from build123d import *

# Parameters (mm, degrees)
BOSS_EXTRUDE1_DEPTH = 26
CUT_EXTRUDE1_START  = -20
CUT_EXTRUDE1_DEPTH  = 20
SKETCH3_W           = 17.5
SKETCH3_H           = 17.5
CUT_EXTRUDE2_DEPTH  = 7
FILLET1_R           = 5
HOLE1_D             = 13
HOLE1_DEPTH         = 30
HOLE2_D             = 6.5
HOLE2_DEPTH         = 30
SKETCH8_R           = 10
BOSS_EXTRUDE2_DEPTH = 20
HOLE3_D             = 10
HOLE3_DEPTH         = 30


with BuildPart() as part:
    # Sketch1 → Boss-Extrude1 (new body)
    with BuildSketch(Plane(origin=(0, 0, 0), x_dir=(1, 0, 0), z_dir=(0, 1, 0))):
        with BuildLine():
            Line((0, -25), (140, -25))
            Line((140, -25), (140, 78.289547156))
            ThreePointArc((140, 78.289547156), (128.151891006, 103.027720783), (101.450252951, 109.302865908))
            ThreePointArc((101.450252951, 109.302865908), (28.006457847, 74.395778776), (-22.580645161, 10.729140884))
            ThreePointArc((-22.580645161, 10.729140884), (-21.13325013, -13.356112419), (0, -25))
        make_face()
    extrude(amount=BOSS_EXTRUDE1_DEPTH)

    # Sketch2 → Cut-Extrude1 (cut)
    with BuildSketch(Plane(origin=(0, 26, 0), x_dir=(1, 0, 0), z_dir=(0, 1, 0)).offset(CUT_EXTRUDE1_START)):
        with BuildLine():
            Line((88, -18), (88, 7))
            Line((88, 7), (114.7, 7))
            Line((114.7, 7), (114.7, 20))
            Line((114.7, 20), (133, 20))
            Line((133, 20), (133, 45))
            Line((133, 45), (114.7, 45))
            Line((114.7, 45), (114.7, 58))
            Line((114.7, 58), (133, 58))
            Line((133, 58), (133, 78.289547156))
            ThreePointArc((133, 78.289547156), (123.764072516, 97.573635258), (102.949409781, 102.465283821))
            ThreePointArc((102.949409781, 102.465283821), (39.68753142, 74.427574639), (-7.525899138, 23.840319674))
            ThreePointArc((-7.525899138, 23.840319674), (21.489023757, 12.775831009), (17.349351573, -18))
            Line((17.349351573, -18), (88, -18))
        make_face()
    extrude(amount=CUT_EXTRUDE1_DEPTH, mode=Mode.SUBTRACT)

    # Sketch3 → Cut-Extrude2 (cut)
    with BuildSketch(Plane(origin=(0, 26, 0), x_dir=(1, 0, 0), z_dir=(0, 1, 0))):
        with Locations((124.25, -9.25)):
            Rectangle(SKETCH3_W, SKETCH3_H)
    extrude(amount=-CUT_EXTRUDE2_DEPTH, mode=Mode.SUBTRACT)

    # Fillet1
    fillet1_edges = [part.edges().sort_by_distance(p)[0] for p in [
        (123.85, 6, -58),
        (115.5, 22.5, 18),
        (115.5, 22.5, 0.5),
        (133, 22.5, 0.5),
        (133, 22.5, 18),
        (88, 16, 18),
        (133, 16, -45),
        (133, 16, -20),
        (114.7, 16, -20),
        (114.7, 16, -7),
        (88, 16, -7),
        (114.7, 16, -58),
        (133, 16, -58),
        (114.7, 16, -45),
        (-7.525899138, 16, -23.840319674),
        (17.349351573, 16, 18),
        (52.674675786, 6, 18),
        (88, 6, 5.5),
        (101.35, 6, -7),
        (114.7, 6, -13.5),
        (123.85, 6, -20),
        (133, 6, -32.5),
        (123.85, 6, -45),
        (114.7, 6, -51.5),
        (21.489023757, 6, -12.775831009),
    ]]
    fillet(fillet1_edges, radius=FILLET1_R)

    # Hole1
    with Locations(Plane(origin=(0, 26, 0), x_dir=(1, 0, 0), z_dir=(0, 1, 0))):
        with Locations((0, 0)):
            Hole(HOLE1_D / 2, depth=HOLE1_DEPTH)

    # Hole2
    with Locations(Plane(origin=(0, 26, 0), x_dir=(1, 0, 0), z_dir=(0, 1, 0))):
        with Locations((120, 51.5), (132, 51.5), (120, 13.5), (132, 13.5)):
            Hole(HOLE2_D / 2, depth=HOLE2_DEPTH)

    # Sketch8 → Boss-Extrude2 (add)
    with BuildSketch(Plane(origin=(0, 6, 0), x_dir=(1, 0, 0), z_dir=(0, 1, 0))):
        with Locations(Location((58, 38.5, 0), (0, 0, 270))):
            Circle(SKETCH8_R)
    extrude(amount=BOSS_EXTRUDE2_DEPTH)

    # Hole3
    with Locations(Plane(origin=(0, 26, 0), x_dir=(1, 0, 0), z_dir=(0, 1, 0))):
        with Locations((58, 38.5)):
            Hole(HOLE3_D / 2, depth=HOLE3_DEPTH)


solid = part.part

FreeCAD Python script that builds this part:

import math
import FreeCAD as App
import Part
import Sketcher
from FreeCAD import Vector
Q = App.Units.Quantity


def edges_at(feature, points):
    """Names of the edges that pass closest to the given points."""
    edges = feature.Shape.Edges
    near = lambda p: min(range(len(edges)), key=lambda i: edges[i].distToShape(Part.Vertex(*p))[0])
    return sorted({f"Edge{near(p) + 1}" for p in points})


def add_polygon(sketch, points):
    """Adds a closed chain of lines whose ends are joined by coincident constraints."""
    first, n = sketch.GeometryCount, len(points)
    for a, b in zip(points, points[1:] + points[:1]):
        sketch.addGeometry(Part.LineSegment(App.Vector(*a, 0), App.Vector(*b, 0)), False)
    for i in range(n):
        sketch.addConstraint(Sketcher.Constraint("Coincident", first + i, 2, first + (i + 1) % n, 1))

doc = App.newDocument("Part")
body = doc.addObject("PartDesign::Body", "Body")

# Sketch on XZ plane
sketch1 = doc.addObject("Sketcher::SketchObject", "Sketch")
body.addObject(sketch1)
sketch1.AttachmentSupport = (doc.XZ_Plane, [""])
sketch1.MapMode = "FlatFace"
sketch1.addGeometry([
    Part.LineSegment(Vector(0, 25, 0), Vector(140, 25, 0)),  # 0
    Part.LineSegment(Vector(140, 25, 0), Vector(140, -78, 0)),  # 1
    Part.ArcOfCircle(Part.Circle(Vector(108, -78, 0), Vector(0, 0, 1), 32), math.radians(-102), math.radians(0)),  # 2
    Part.ArcOfCircle(Part.Circle(Vector(140, 67, 0), Vector(0, 0, 1), 180), math.radians(-155), math.radians(-102)),  # 3
    Part.ArcOfCircle(Part.Circle(Vector(0, 0, 0), Vector(0, 0, 1), 25), math.radians(90), math.radians(205)),  # 4
], False)
sketch1.addConstraint([
    Sketcher.Constraint("Coincident", 0, 2, 1, 1),
    Sketcher.Constraint("Tangent", 1, 2, 2, 2),
    Sketcher.Constraint("Tangent", 2, 1, 3, 2),
    Sketcher.Constraint("Tangent", 3, 1, 4, 2),
    Sketcher.Constraint("Tangent", 4, 1, 0, 1),
    Sketcher.Constraint("Horizontal", 0),
    Sketcher.Constraint("Vertical", 1),
    Sketcher.Constraint("Coincident", 4, 3, -1, 1),
    Sketcher.Constraint("Vertical", 3, 3, 0, 2),
    Sketcher.Constraint("Radius", 3, Q("180 mm")),
    Sketcher.Constraint("Radius", 4, Q("25 mm")),
    Sketcher.Constraint("DistanceX", 0, 1, 0, 2, Q("140 mm")),
    Sketcher.Constraint("Radius", 2, Q("31.75 mm")),
])
pad1 = doc.addObject("PartDesign::Pad", "Pad")
body.addObject(pad1)
pad1.Profile = sketch1
pad1.Length = 26
pad1.Reversed = True

# Sketch on XZ plane
sketch2 = doc.addObject("Sketcher::SketchObject", "Sketch001")
body.addObject(sketch2)
sketch2.AttachmentSupport = (doc.XZ_Plane, [""])
sketch2.MapMode = "FlatFace"
sketch2.AttachmentOffset = App.Placement(Vector(0, 0, -6), App.Rotation())
sketch2.addGeometry([
    Part.LineSegment(Vector(88, 18, 0), Vector(88, -7, 0)),  # 0
    Part.LineSegment(Vector(88, -7, 0), Vector(115, -7, 0)),  # 1
    Part.LineSegment(Vector(115, -7, 0), Vector(115, -20, 0)),  # 2
    Part.LineSegment(Vector(115, -20, 0), Vector(133, -20, 0)),  # 3
    Part.LineSegment(Vector(133, -20, 0), Vector(133, -45, 0)),  # 4
    Part.LineSegment(Vector(133, -45, 0), Vector(115, -45, 0)),  # 5
    Part.LineSegment(Vector(115, -45, 0), Vector(115, -58, 0)),  # 6
    Part.LineSegment(Vector(115, -58, 0), Vector(133, -58, 0)),  # 7
    Part.LineSegment(Vector(133, -58, 0), Vector(133, -78, 0)),  # 8
    Part.ArcOfCircle(Part.Circle(Vector(108, -78, 0), Vector(0, 0, 1), 25), math.radians(-102), math.radians(0)),  # 9
    Part.ArcOfCircle(Part.Circle(Vector(140, 67, 0), Vector(0, 0, 1), 173), math.radians(-149), math.radians(-102)),  # 10
    Part.ArcOfCircle(Part.Circle(Vector(0, 0, 0), Vector(0, 0, 1), 25), math.radians(-108), math.radians(46)),  # 11
    Part.LineSegment(Vector(17, 18, 0), Vector(88, 18, 0)),  # 12
], False)
sketch2.addConstraint([
    Sketcher.Constraint("Coincident", 0, 2, 1, 1),
    Sketcher.Constraint("Coincident", 1, 2, 2, 1),
    Sketcher.Constraint("Coincident", 2, 2, 3, 1),
    Sketcher.Constraint("Coincident", 3, 2, 4, 1),
    Sketcher.Constraint("Coincident", 4, 2, 5, 1),
    Sketcher.Constraint("Coincident", 5, 2, 6, 1),
    Sketcher.Constraint("Coincident", 6, 2, 7, 1),
    Sketcher.Constraint("Coincident", 7, 2, 8, 1),
    Sketcher.Constraint("Tangent", 8, 2, 9, 2),
    Sketcher.Constraint("Tangent", 9, 1, 10, 2),
    Sketcher.Constraint("Coincident", 10, 1, 11, 1),
    Sketcher.Constraint("Coincident", 11, 2, 12, 1),
    Sketcher.Constraint("Coincident", 12, 2, 0, 1),
    Sketcher.Constraint("Vertical", 0),
    Sketcher.Constraint("Horizontal", 1),
    Sketcher.Constraint("Vertical", 2),
    Sketcher.Constraint("Horizontal", 3),
    Sketcher.Constraint("Vertical", 4),
    Sketcher.Constraint("Horizontal", 5),
    Sketcher.Constraint("Vertical", 6),
    Sketcher.Constraint("Horizontal", 7),
    Sketcher.Constraint("Vertical", 8),
    Sketcher.Constraint("Horizontal", 12),
    Sketcher.Constraint("Coincident", 11, 3, -1, 1),
    Sketcher.Constraint("Vertical", 2, 2, 5, 2),
    Sketcher.Constraint("Vertical", 4, 2, 7, 2),
    Sketcher.Constraint("Equal", 0, 4),
    Sketcher.Constraint("Equal", 2, 6),
    Sketcher.Constraint("Radius", 10, Q("173 mm")),
    Sketcher.Constraint("Radius", 11, Q("25 mm")),
    Sketcher.Constraint("DistanceY", 0, 2, 0, 1, Q("25 mm")),
    Sketcher.Constraint("DistanceY", 2, 2, 2, 1, Q("13 mm")),
    Sketcher.Constraint("Radius", 9, Q("24.75 mm")),
    Sketcher.Constraint("DistanceX", 1, 1, 1, 2, Q("26.7 mm")),
    Sketcher.Constraint("DistanceX", 3, 1, 3, 2, Q("18.3 mm")),
    Sketcher.Constraint("DistanceX", -1, 1, 10, 3, Q("140 mm")),
    Sketcher.Constraint("DistanceX", -1, 1, 0, 2, Q("88 mm")),
    Sketcher.Constraint("DistanceY", 0, 2, -1, 1, Q("7 mm")),
    Sketcher.Constraint("DistanceX", 10, 1, -1, 1, Q("7.525899 mm")),
])
pocket1 = doc.addObject("PartDesign::Pocket", "Pocket")
body.addObject(pocket1)
pocket1.Profile = sketch2
pocket1.Length = 20

# Sketch on XZ plane
sketch3 = doc.addObject("Sketcher::SketchObject", "Sketch002")
body.addObject(sketch3)
sketch3.AttachmentSupport = (doc.XZ_Plane, [""])
sketch3.MapMode = "FlatFace"
sketch3.AttachmentOffset = App.Placement(Vector(0, 0, -26), App.Rotation())
add_polygon(sketch3, [(116, 0), (116, 18), (133, 18), (133, 0)])  # lines 0-3
sketch3.addConstraint([
    Sketcher.Constraint("Vertical", 0),
    Sketcher.Constraint("Horizontal", 1),
    Sketcher.Constraint("Vertical", 2),
    Sketcher.Constraint("Horizontal", 3),
    Sketcher.Constraint("Equal", 3, 0),
    Sketcher.Constraint("DistanceX", 1, 1, 1, 2, Q("17.5 mm")),
    Sketcher.Constraint("DistanceY", -1, 1, 0, 2, Q("18 mm")),
    Sketcher.Constraint("DistanceX", -1, 1, 1, 2, Q("133 mm")),
])
pocket2 = doc.addObject("PartDesign::Pocket", "Pocket001")
body.addObject(pocket2)
pocket2.Profile = sketch3
pocket2.Length = 7
pocket2.Reversed = True
doc.recompute()

fillet = doc.addObject("PartDesign::Fillet", "Fillet")
body.addObject(fillet)
fillet.Base = (pocket2, edges_at(pocket2, [
    (123.85, 6, -58),
    (115.5, 22.5, 18),
    (115.5, 22.5, 0.5),
    (133, 22.5, 0.5),
    (133, 22.5, 18),
    (88, 16, 18),
    (133, 16, -45),
    (133, 16, -20),
    (114.7, 16, -20),
    (114.7, 16, -7),
    (88, 16, -7),
    (114.7, 16, -58),
    (133, 16, -58),
    (114.7, 16, -45),
    (-7.526, 16, -23.84),
    (17.349, 16, 18),
    (52.675, 6, 18),
    (88, 6, 5.5),
    (101.35, 6, -7),
    (114.7, 6, -13.5),
    (123.85, 6, -20),
    (133, 6, -32.5),
    (123.85, 6, -45),
    (114.7, 6, -51.5),
    (21.489, 6, -12.776),
]))
fillet.Radius = 5

# Sketch on XZ plane
sketch4 = doc.addObject("Sketcher::SketchObject", "Sketch003")
body.addObject(sketch4)
sketch4.AttachmentSupport = (doc.XZ_Plane, [""])
sketch4.MapMode = "FlatFace"
sketch4.AttachmentOffset = App.Placement(Vector(0, 0, -26), App.Rotation())
sketch4.addGeometry(Part.Circle(Vector(0, 0, 0), Vector(0, 0, 1), 6), False)
sketch4.addConstraint([
    Sketcher.Constraint("Coincident", 0, 3, -1, 1),
    Sketcher.Constraint("Diameter", 0, Q("13 mm")),
])
doc.recompute()
hole = doc.addObject("PartDesign::Hole", "Hole")
body.addObject(hole)
hole.Profile = sketch4
hole.ThreadType = "None"
hole.Diameter = 13
hole.DepthType = "Dimension"
hole.Depth = 30
hole.DrillPoint = "Flat"
hole.Reversed = True

# Sketch on XZ plane
sketch5 = doc.addObject("Sketcher::SketchObject", "Sketch004")
body.addObject(sketch5)
sketch5.AttachmentSupport = (doc.XZ_Plane, [""])
sketch5.MapMode = "FlatFace"
sketch5.AttachmentOffset = App.Placement(Vector(0, 0, -26), App.Rotation())
sketch5.addGeometry([
    Part.Circle(Vector(120, -51.5, 0), Vector(0, 0, 1), 3.2),
    Part.Circle(Vector(132, -51.5, 0), Vector(0, 0, 1), 3.2),
    Part.Circle(Vector(120, -13.5, 0), Vector(0, 0, 1), 3.2),
    Part.Circle(Vector(132, -13.5, 0), Vector(0, 0, 1), 3.2),
], False)
sketch5.addConstraint([
    Sketcher.Constraint("Equal", 0, 1),
    Sketcher.Constraint("Equal", 1, 2),
    Sketcher.Constraint("Equal", 2, 3),
    Sketcher.Constraint("Horizontal", 0, 3, 1, 3),
    Sketcher.Constraint("Horizontal", 2, 3, 3, 3),
    Sketcher.Constraint("Vertical", 0, 3, 2, 3),
    Sketcher.Constraint("Vertical", 1, 3, 3, 3),
    Sketcher.Constraint("Diameter", 0, Q("6.5 mm")),
    Sketcher.Constraint("DistanceX", -1, 1, 0, 3, Q("120 mm")),
    Sketcher.Constraint("DistanceX", -1, 1, 1, 3, Q("132 mm")),
    Sketcher.Constraint("DistanceY", 0, 3, 2, 3, Q("38 mm")),
    Sketcher.Constraint("DistanceY", 0, 3, -1, 1, Q("51.5 mm")),
])
doc.recompute()
hole2 = doc.addObject("PartDesign::Hole", "Hole001")
body.addObject(hole2)
hole2.Profile = sketch5
hole2.ThreadType = "None"
hole2.Diameter = 6.5
hole2.DepthType = "Dimension"
hole2.Depth = 30
hole2.DrillPoint = "Flat"
hole2.Reversed = True

# Sketch on XZ plane
sketch6 = doc.addObject("Sketcher::SketchObject", "Sketch005")
body.addObject(sketch6)
sketch6.AttachmentSupport = (doc.XZ_Plane, [""])
sketch6.MapMode = "FlatFace"
sketch6.AttachmentOffset = App.Placement(Vector(0, 0, -6), App.Rotation())
sketch6.addGeometry(Part.Circle(Vector(58, -38, 0), Vector(0, 0, 1), 10), False)
sketch6.addConstraint([
    Sketcher.Constraint("Diameter", 0, Q("20 mm")),
    Sketcher.Constraint("DistanceX", -1, 1, 0, 3, Q("58 mm")),
    Sketcher.Constraint("DistanceY", 0, 3, -1, 1, Q("38.5 mm")),
])
pad2 = doc.addObject("PartDesign::Pad", "Pad001")
body.addObject(pad2)
pad2.Profile = sketch6
pad2.Length = 20
pad2.Reversed = True

# Sketch on XZ plane
sketch7 = doc.addObject("Sketcher::SketchObject", "Sketch006")
body.addObject(sketch7)
sketch7.AttachmentSupport = (doc.XZ_Plane, [""])
sketch7.MapMode = "FlatFace"
sketch7.AttachmentOffset = App.Placement(Vector(0, 0, -26), App.Rotation())
sketch7.addGeometry(Part.Circle(Vector(58, -38, 0), Vector(0, 0, 1), 5), False)
sketch7.addConstraint([
    Sketcher.Constraint("Diameter", 0, Q("10 mm")),
    Sketcher.Constraint("DistanceX", -1, 1, 0, 3, Q("58 mm")),
    Sketcher.Constraint("DistanceY", 0, 3, -1, 1, Q("38.5 mm")),
])
doc.recompute()
hole3 = doc.addObject("PartDesign::Hole", "Hole002")
body.addObject(hole3)
hole3.Profile = sketch7
hole3.ThreadType = "None"
hole3.Diameter = 10
hole3.DepthType = "Dimension"
hole3.Depth = 30
hole3.DrillPoint = "Flat"
hole3.Reversed = True

doc.recompute()
